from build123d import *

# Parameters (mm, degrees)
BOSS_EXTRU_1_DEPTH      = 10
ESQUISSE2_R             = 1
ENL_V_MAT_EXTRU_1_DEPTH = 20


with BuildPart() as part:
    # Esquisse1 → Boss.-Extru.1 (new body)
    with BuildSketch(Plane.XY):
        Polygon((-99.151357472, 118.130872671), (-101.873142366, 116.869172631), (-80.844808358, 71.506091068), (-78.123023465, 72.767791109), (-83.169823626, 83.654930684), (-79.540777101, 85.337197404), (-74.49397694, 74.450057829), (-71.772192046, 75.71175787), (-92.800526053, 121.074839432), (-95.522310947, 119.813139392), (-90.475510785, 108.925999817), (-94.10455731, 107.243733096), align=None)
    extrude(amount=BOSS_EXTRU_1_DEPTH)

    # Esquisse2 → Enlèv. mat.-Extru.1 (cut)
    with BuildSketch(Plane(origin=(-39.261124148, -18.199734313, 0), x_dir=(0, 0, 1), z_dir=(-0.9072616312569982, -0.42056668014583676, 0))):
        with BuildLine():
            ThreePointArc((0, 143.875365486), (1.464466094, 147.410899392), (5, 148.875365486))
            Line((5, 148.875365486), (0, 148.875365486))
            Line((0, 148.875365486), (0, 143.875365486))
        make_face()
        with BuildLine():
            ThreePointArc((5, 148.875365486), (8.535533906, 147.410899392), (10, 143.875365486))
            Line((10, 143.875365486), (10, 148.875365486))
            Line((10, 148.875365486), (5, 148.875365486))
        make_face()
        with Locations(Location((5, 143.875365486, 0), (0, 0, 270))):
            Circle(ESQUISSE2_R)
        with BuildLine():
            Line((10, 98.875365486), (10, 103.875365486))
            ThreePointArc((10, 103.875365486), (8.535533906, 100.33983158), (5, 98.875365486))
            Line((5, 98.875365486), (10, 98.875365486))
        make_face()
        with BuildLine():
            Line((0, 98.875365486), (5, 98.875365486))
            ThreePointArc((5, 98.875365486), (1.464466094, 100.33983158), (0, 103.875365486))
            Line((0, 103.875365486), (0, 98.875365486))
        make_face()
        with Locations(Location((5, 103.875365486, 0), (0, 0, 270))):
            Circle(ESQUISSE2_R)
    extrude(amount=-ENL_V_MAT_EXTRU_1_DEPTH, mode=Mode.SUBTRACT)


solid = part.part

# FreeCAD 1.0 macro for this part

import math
import FreeCAD as App
import Part
import Sketcher

doc = App.newDocument("Part")
body = doc.addObject("PartDesign::Body", "Body")

# Sketch on XY plane
sketch1 = body.newObject("Sketcher::SketchObject", "Sketch")
sketch1.AttachmentSupport = (doc.getObject("XY_Plane"), [""])
sketch1.MapMode = "FlatFace"
sketch1.addGeometry([
    Part.LineSegment(App.Vector(-99.2, 118.1, 0), App.Vector(-101.9, 116.9, 0)),  # 0
    Part.LineSegment(App.Vector(-101.9, 116.9, 0), App.Vector(-80.8, 71.5, 0)),  # 1
    Part.LineSegment(App.Vector(-80.8, 71.5, 0), App.Vector(-78.1, 72.8, 0)),  # 2
    Part.LineSegment(App.Vector(-78.1, 72.8, 0), App.Vector(-83.2, 83.7, 0)),  # 3
    Part.LineSegment(App.Vector(-83.2, 83.7, 0), App.Vector(-79.5, 85.3, 0)),  # 4
    Part.LineSegment(App.Vector(-79.5, 85.3, 0), App.Vector(-74.5, 74.5, 0)),  # 5
    Part.LineSegment(App.Vector(-74.5, 74.5, 0), App.Vector(-71.8, 75.7, 0)),  # 6
    Part.LineSegment(App.Vector(-71.8, 75.7, 0), App.Vector(-92.8, 121.1, 0)),  # 7
    Part.LineSegment(App.Vector(-92.8, 121.1, 0), App.Vector(-95.5, 119.8, 0)),  # 8
    Part.LineSegment(App.Vector(-95.5, 119.8, 0), App.Vector(-90.5, 108.9, 0)),  # 9
    Part.LineSegment(App.Vector(-90.5, 108.9, 0), App.Vector(-94.1, 107.2, 0)),  # 10
    Part.LineSegment(App.Vector(-94.1, 107.2, 0), App.Vector(-99.2, 118.1, 0)),  # 11
], False)
sketch1.addConstraint([
    Sketcher.Constraint("Coincident", 0, 2, 1, 1),
    Sketcher.Constraint("Coincident", 1, 2, 2, 1),
    Sketcher.Constraint("Coincident", 2, 2, 3, 1),
    Sketcher.Constraint("Coincident", 3, 2, 4, 1),
    Sketcher.Constraint("Coincident", 4, 2, 5, 1),
    Sketcher.Constraint("Coincident", 5, 2, 6, 1),
    Sketcher.Constraint("Coincident", 6, 2, 7, 1),
    Sketcher.Constraint("Coincident", 7, 2, 8, 1),
    Sketcher.Constraint("Coincident", 8, 2, 9, 1),
    Sketcher.Constraint("Coincident", 9, 2, 10, 1),
    Sketcher.Constraint("Coincident", 10, 2, 11, 1),
    Sketcher.Constraint("Coincident", 11, 2, 0, 1),
    Sketcher.Constraint("Perpendicular", 0, 1),
    Sketcher.Constraint("Perpendicular", 1, 2),
    Sketcher.Constraint("Perpendicular", 2, 3),
    Sketcher.Constraint("Perpendicular", 3, 4),
    Sketcher.Constraint("Perpendicular", 4, 5),
    Sketcher.Constraint("Perpendicular", 5, 6),
    Sketcher.Constraint("Perpendicular", 6, 7),
    Sketcher.Constraint("Perpendicular", 7, 8),
    Sketcher.Constraint("Perpendicular", 8, 9),
    Sketcher.Constraint("Perpendicular", 9, 10),
    Sketcher.Constraint("Perpendicular", 10, 11),
    Sketcher.Constraint("Equal", 0, 2),
    Sketcher.Constraint("Equal", 3, 5),
    Sketcher.Constraint("Equal", 2, 6),
    Sketcher.Constraint("Equal", 1, 7),
    Sketcher.Constraint("Equal", 6, 8),
    Sketcher.Constraint("Equal", 5, 9),
    Sketcher.Constraint("Distance", 0, 3.0),
    Sketcher.Constraint("Distance", 1, 50.0),
    Sketcher.Constraint("Distance", 3, 12.0),
    Sketcher.Constraint("Distance", 4, 4.0),
    Sketcher.Constraint("DistanceY", -1, 1, 9, 2, 108.926),
    Sketcher.Constraint("DistanceY", 1, 2, 2, 2, 1.2617),
    Sketcher.Constraint("DistanceX", 1, 2, -1, 1, 80.844808),
])
pad1 = body.newObject("PartDesign::Pad", "Pad")
pad1.Profile = sketch1
pad1.Length = 10

# Sketch on an angled plane
sketch2 = body.newObject("Sketcher::SketchObject", "Sketch001")
sketch2.Placement = App.Placement(App.Vector(-39.261124, -18.199734, 0), App.Rotation(App.Vector(0, 0, 1), App.Vector(-0.42056668, 0.907261631, 0), App.Vector(-0.907261631, -0.42056668, 0), "ZXY"))
sketch2.addGeometry([
    Part.ArcOfCircle(Part.Circle(App.Vector(5, 143.9, 0), App.Vector(0, 0, 1), 5), math.radians(90), math.radians(180)),  # 0
    Part.LineSegment(App.Vector(5, 148.9, 0), App.Vector(0, 148.9, 0)),  # 1
    Part.LineSegment(App.Vector(0, 148.9, 0), App.Vector(0, 143.9, 0)),  # 2
    Part.ArcOfCircle(Part.Circle(App.Vector(5, 143.9, 0), App.Vector(0, 0, 1), 5), math.radians(0), math.radians(90)),  # 3
    Part.LineSegment(App.Vector(10, 143.9, 0), App.Vector(10, 148.9, 0)),  # 4
    Part.LineSegment(App.Vector(10, 148.9, 0), App.Vector(5, 148.9, 0)),  # 5
    Part.Circle(App.Vector(5, 143.9, 0), App.Vector(0, 0, 1), 1),  # 6
    Part.LineSegment(App.Vector(10, 98.9, 0), App.Vector(10, 103.9, 0)),  # 7
    Part.ArcOfCircle(Part.Circle(App.Vector(5, 103.9, 0), App.Vector(0, 0, 1), 5), math.radians(-90), math.radians(0)),  # 8
    Part.LineSegment(App.Vector(5, 98.9, 0), App.Vector(10, 98.9, 0)),  # 9
    Part.LineSegment(App.Vector(0, 98.9, 0), App.Vector(5, 98.9, 0)),  # 10
    Part.ArcOfCircle(Part.Circle(App.Vector(5, 103.9, 0), App.Vector(0, 0, 1), 5), math.radians(180), math.radians(270)),  # 11
    Part.LineSegment(App.Vector(0, 103.9, 0), App.Vector(0, 98.9, 0)),  # 12
    Part.Circle(App.Vector(5, 103.9, 0), App.Vector(0, 0, 1), 1),  # 13
], False)
sketch2.addConstraint([
    Sketcher.Constraint("Tangent", 0, 1, 1, 1),
    Sketcher.Constraint("Coincident", 1, 2, 2, 1),
    Sketcher.Constraint("Tangent", 2, 2, 0, 2),
    Sketcher.Constraint("Tangent", 3, 1, 4, 1),
    Sketcher.Constraint("Coincident", 4, 2, 5, 1),
    Sketcher.Constraint("Tangent", 5, 2, 3, 2),
    Sketcher.Constraint("Tangent", 7, 2, 8, 2),
    Sketcher.Constraint("Tangent", 8, 1, 9, 1),
    Sketcher.Constraint("Coincident", 9, 2, 7, 1),
    Sketcher.Constraint("Tangent", 10, 2, 11, 2),
    Sketcher.Constraint("Tangent", 11, 1, 12, 1),
    Sketcher.Constraint("Coincident", 12, 2, 10, 1),
    Sketcher.Constraint("Horizontal", 1),
    Sketcher.Constraint("Vertical", 2),
    Sketcher.Constraint("Vertical", 4),
    Sketcher.Constraint("Horizontal", 5),
    Sketcher.Constraint("Vertical", 7),
    Sketcher.Constraint("Horizontal", 9),
    Sketcher.Constraint("Horizontal", 10),
    Sketcher.Constraint("Vertical", 12),
    Sketcher.Constraint("Coincident", 3, 3, 0, 3),
    Sketcher.Constraint("Coincident", 6, 3, 0, 3),
    Sketcher.Constraint("Coincident", 11, 3, 8, 3),
    Sketcher.Constraint("Coincident", 13, 3, 8, 3),
    Sketcher.Constraint("Equal", 0, 3),
    Sketcher.Constraint("Equal", 3, 8),
    Sketcher.Constraint("Equal", 8, 11),
    Sketcher.Constraint("Equal", 6, 13),
    Sketcher.Constraint("PointOnObject", 1, 2, -2),
    Sketcher.Constraint("PointOnObject", 11, 1, -2),
    Sketcher.Constraint("Diameter", 6, 2.0),
    Sketcher.Constraint("Radius", 0, 5.0),
    Sketcher.Constraint("DistanceY", 8, 3, 0, 3, 40.0),
    Sketcher.Constraint("DistanceY", -1, 1, 0, 3, 143.875365),
])
pocket1 = body.newObject("PartDesign::Pocket", "Pocket")
pocket1.Profile = sketch2
pocket1.Length = 20

doc.recompute()
